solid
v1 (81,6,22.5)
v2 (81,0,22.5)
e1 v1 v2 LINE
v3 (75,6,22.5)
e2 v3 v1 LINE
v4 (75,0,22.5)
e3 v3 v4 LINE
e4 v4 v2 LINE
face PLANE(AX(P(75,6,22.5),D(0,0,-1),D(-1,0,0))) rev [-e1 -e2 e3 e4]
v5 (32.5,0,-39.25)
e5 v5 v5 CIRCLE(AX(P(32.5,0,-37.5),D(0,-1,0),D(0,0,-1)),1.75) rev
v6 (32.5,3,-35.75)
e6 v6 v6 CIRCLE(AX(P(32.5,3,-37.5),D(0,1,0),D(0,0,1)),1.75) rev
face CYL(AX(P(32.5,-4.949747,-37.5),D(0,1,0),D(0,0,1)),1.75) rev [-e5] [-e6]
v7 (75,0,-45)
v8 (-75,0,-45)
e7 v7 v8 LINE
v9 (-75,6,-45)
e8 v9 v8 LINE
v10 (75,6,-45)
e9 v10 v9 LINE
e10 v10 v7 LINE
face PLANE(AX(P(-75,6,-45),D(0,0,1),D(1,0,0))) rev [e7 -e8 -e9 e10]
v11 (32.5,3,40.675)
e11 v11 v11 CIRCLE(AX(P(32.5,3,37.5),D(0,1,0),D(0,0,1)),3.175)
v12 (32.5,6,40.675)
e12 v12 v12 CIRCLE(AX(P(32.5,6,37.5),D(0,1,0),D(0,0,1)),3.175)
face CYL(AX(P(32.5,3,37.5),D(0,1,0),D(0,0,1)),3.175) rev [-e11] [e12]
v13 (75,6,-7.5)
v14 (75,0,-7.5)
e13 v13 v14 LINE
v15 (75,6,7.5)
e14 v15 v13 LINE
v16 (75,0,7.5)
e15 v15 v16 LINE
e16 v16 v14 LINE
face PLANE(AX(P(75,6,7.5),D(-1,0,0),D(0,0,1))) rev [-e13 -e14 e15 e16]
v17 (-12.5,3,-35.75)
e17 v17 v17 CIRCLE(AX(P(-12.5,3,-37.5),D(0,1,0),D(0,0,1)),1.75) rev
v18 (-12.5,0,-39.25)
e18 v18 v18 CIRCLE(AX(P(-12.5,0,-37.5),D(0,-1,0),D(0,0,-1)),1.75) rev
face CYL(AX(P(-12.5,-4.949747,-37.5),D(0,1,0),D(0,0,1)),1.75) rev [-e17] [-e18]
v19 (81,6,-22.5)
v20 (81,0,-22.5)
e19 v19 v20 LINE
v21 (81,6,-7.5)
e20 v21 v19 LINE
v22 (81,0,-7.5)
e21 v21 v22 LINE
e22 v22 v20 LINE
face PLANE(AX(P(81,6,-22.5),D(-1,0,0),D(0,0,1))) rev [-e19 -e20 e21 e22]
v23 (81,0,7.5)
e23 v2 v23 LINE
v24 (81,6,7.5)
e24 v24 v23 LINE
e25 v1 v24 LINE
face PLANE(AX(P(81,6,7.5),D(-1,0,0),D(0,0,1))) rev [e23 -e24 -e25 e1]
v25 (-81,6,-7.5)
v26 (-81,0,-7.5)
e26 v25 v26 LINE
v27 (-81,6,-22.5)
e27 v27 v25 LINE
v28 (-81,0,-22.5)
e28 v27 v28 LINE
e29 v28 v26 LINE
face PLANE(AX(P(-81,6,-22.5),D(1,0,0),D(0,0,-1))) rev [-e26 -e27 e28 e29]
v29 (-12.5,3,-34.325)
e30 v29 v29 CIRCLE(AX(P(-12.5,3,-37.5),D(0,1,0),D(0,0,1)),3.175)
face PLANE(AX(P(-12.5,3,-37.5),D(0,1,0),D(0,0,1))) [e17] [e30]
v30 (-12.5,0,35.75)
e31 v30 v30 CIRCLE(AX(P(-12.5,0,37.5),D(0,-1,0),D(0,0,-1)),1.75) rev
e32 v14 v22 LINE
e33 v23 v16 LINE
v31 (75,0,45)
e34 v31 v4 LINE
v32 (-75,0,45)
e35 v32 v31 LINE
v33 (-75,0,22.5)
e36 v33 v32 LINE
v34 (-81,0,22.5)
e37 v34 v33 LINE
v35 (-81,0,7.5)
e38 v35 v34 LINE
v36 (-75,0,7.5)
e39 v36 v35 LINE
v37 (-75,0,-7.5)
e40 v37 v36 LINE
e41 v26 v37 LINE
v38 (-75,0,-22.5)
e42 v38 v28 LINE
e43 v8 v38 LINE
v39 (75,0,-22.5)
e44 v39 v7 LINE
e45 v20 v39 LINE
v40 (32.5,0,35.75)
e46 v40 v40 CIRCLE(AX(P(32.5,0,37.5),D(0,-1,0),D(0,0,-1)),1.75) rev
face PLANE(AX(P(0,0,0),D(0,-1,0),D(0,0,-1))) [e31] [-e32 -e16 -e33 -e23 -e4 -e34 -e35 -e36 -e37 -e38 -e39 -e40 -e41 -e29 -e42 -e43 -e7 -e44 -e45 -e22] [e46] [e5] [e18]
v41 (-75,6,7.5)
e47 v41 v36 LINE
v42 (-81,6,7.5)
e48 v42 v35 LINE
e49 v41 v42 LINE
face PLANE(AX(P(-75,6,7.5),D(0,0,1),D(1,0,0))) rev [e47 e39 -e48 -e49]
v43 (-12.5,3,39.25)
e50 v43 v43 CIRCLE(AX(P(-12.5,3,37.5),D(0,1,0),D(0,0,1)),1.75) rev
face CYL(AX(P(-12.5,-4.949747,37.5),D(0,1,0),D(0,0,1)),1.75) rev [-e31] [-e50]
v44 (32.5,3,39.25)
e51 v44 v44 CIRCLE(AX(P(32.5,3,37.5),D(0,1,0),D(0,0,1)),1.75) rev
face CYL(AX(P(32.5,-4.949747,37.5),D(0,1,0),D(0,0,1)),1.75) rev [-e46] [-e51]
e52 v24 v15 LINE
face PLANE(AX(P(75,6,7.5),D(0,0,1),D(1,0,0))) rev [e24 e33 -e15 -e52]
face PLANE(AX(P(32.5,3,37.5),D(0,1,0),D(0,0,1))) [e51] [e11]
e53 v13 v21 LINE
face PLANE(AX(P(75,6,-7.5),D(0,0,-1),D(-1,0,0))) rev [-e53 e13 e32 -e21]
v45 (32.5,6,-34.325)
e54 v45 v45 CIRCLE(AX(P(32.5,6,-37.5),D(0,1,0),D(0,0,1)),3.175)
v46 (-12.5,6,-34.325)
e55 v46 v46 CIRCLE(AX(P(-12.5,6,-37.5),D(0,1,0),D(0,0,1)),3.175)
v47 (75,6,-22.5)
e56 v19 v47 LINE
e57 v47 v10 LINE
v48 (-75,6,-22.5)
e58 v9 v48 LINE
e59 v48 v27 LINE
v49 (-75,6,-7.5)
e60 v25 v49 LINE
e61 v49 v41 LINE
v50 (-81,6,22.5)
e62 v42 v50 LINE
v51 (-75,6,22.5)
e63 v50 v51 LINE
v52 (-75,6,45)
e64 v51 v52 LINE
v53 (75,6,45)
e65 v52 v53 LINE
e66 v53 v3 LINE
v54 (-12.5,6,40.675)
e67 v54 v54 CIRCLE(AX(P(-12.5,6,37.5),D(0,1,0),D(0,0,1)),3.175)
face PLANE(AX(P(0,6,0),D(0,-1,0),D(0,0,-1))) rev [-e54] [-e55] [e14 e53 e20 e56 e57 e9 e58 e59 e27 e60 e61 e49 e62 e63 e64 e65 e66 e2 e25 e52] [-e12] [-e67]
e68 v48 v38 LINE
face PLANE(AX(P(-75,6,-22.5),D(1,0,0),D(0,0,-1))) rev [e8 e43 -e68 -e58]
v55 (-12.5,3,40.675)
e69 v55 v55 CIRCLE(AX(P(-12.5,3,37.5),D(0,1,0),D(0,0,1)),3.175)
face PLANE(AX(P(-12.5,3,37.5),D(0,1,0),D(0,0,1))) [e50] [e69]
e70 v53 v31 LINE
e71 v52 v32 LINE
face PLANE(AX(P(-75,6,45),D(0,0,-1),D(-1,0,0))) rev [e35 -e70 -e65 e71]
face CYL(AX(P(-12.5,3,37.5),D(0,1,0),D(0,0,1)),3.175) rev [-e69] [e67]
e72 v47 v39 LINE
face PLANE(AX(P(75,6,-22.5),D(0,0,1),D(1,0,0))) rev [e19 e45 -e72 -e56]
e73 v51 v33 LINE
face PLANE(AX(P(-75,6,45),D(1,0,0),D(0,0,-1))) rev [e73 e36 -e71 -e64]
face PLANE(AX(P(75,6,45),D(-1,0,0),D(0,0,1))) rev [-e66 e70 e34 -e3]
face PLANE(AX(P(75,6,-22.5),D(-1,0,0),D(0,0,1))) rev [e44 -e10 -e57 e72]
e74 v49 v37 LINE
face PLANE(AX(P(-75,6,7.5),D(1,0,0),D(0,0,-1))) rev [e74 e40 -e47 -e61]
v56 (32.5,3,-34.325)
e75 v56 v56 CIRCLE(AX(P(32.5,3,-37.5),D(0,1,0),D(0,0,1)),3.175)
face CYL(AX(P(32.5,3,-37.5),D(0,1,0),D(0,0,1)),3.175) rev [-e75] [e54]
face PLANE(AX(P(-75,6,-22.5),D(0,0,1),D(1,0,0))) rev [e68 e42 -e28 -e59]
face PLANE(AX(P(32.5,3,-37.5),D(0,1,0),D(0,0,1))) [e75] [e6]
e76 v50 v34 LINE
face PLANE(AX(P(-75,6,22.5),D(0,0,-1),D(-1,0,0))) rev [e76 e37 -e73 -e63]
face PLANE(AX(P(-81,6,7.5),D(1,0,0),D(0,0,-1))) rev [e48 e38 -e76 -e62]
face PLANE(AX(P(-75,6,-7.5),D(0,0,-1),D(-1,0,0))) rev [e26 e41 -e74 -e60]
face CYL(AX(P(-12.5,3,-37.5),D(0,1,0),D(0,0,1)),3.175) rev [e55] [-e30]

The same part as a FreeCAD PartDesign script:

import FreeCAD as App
import Part
import Sketcher

V = App.Vector
Q = App.Units.Quantity

doc = App.newDocument("Part")
params = doc.addObject("Spreadsheet::Sheet", "Params")
for row, (alias, value) in enumerate([
    ("sketch1_width", "150 mm"),
    ("sketch1_width2", "6 mm"),
    ("sketch1_height", "15 mm"),
    ("sketch1_height2", "22.5 mm"),
    ("pad1_length", "6 mm"),
    ("sketch2_diameter", "3.5 mm"),
    ("pocket1_length", "6 mm"),
    ("sketch3_diameter", "6.35 mm"),
    ("pocket2_length", "3 mm"),
], start=1):
    params.set(f"A{row}", alias)
    params.set(f"B{row}", "=" + value)
    params.setAlias(f"B{row}", alias)

body = doc.addObject("PartDesign::Body", "Body")

sketch1 = body.newObject("Sketcher::SketchObject", "Sketch")
sketch1.AttachmentSupport = (doc.getObject("XZ_Plane"), [""])
sketch1.MapMode = "FlatFace"
sketch1.addGeometry(Part.LineSegment(V(-75, 45, 0), V(75, 45, 0)), False)
sketch1.addGeometry(Part.LineSegment(V(75, 45, 0), V(75, 22, 0)), False)
sketch1.addGeometry(Part.LineSegment(V(75, 22, 0), V(81, 22, 0)), False)
sketch1.addGeometry(Part.LineSegment(V(81, 22, 0), V(81, 8, 0)), False)
sketch1.addGeometry(Part.LineSegment(V(81, 8, 0), V(75, 8, 0)), False)
sketch1.addGeometry(Part.LineSegment(V(75, 8, 0), V(75, -8, 0)), False)
sketch1.addGeometry(Part.LineSegment(V(75, -8, 0), V(81, -8, 0)), False)
sketch1.addGeometry(Part.LineSegment(V(81, -8, 0), V(81, -22, 0)), False)
sketch1.addGeometry(Part.LineSegment(V(81, -22, 0), V(75, -22, 0)), False)
sketch1.addGeometry(Part.LineSegment(V(75, -22, 0), V(75, -45, 0)), False)
sketch1.addGeometry(Part.LineSegment(V(75, -45, 0), V(-75, -45, 0)), False)
sketch1.addGeometry(Part.LineSegment(V(-75, -45, 0), V(-75, -22, 0)), False)
sketch1.addGeometry(Part.LineSegment(V(-75, -22, 0), V(-81, -22, 0)), False)
sketch1.addGeometry(Part.LineSegment(V(-81, -22, 0), V(-81, -8, 0)), False)
sketch1.addGeometry(Part.LineSegment(V(-81, -8, 0), V(-75, -8, 0)), False)
sketch1.addGeometry(Part.LineSegment(V(-75, -8, 0), V(-75, 8, 0)), False)
sketch1.addGeometry(Part.LineSegment(V(-75, 8, 0), V(-81, 8, 0)), False)
sketch1.addGeometry(Part.LineSegment(V(-81, 8, 0), V(-81, 22, 0)), False)
sketch1.addGeometry(Part.LineSegment(V(-81, 22, 0), V(-75, 22, 0)), False)
sketch1.addGeometry(Part.LineSegment(V(-75, 22, 0), V(-75, 45, 0)), False)
sketch1.addConstraint(Sketcher.Constraint("Coincident", 0, 2, 1, 1))
sketch1.addConstraint(Sketcher.Constraint("Coincident", 1, 2, 2, 1))
sketch1.addConstraint(Sketcher.Constraint("Coincident", 2, 2, 3, 1))
sketch1.addConstraint(Sketcher.Constraint("Coincident", 3, 2, 4, 1))
sketch1.addConstraint(Sketcher.Constraint("Coincident", 4, 2, 5, 1))
sketch1.addConstraint(Sketcher.Constraint("Coincident", 5, 2, 6, 1))
sketch1.addConstraint(Sketcher.Constraint("Coincident", 6, 2, 7, 1))
sketch1.addConstraint(Sketcher.Constraint("Coincident", 7, 2, 8, 1))
sketch1.addConstraint(Sketcher.Constraint("Coincident", 8, 2, 9, 1))
sketch1.addConstraint(Sketcher.Constraint("Coincident", 9, 2, 10, 1))
sketch1.addConstraint(Sketcher.Constraint("Coincident", 10, 2, 11, 1))
sketch1.addConstraint(Sketcher.Constraint("Coincident", 11, 2, 12, 1))
sketch1.addConstraint(Sketcher.Constraint("Coincident", 12, 2, 13, 1))
sketch1.addConstraint(Sketcher.Constraint("Coincident", 13, 2, 14, 1))
sketch1.addConstraint(Sketcher.Constraint("Coincident", 14, 2, 15, 1))
sketch1.addConstraint(Sketcher.Constraint("Coincident", 15, 2, 16, 1))
sketch1.addConstraint(Sketcher.Constraint("Coincident", 16, 2, 17, 1))
sketch1.addConstraint(Sketcher.Constraint("Coincident", 17, 2, 18, 1))
sketch1.addConstraint(Sketcher.Constraint("Coincident", 18, 2, 19, 1))
sketch1.addConstraint(Sketcher.Constraint("Coincident", 19, 2, 0, 1))
sketch1.addConstraint(Sketcher.Constraint("Horizontal", 0))
sketch1.addConstraint(Sketcher.Constraint("Vertical", 1))
sketch1.addConstraint(Sketcher.Constraint("Horizontal", 2))
sketch1.addConstraint(Sketcher.Constraint("Vertical", 3))
sketch1.addConstraint(Sketcher.Constraint("Horizontal", 4))
sketch1.addConstraint(Sketcher.Constraint("Vertical", 5))
sketch1.addConstraint(Sketcher.Constraint("Horizontal", 6))
sketch1.addConstraint(Sketcher.Constraint("Vertical", 7))
sketch1.addConstraint(Sketcher.Constraint("Horizontal", 8))
sketch1.addConstraint(Sketcher.Constraint("Vertical", 9))
sketch1.addConstraint(Sketcher.Constraint("Horizontal", 10))
sketch1.addConstraint(Sketcher.Constraint("Vertical", 11))
sketch1.addConstraint(Sketcher.Constraint("Horizontal", 12))
sketch1.addConstraint(Sketcher.Constraint("Vertical", 13))
sketch1.addConstraint(Sketcher.Constraint("Horizontal", 14))
sketch1.addConstraint(Sketcher.Constraint("Vertical", 15))
sketch1.addConstraint(Sketcher.Constraint("Horizontal", 16))
sketch1.addConstraint(Sketcher.Constraint("Vertical", 17))
sketch1.addConstraint(Sketcher.Constraint("Horizontal", 18))
sketch1.addConstraint(Sketcher.Constraint("Vertical", 19))
sketch1.addConstraint(Sketcher.Constraint("Symmetric", 0, 2, 10, 2, -1, 1))
sketch1.addConstraint(Sketcher.Constraint("Symmetric", 2, 2, 12, 2, -1, 1))
sketch1.addConstraint(Sketcher.Constraint("Symmetric", 4, 2, 14, 2, -1, 1))
sketch1.addConstraint(Sketcher.Constraint("Symmetric", 6, 2, 16, 2, -1, 1))
sketch1.addConstraint(Sketcher.Constraint("Symmetric", 8, 2, 18, 2, -1, 1))
sketch1.addConstraint(Sketcher.Constraint("Symmetric", 8, 2, 11, 2, -2))
sketch1.addConstraint(Sketcher.Constraint("Symmetric", 6, 2, 13, 2, -2))
sketch1.addConstraint(Sketcher.Constraint("Vertical", 1, 2, 4, 2))
sketch1.addConstraint(Sketcher.Constraint("Equal", 3, 5))
sketch1.addConstraint(Sketcher.Constraint("DistanceX", 0, 1, 0, 2, Q("150 mm")))
sketch1.addConstraint(Sketcher.Constraint("DistanceX", 2, 1, 2, 2, Q("6 mm")))
sketch1.addConstraint(Sketcher.Constraint("DistanceY", 3, 2, 3, 1, Q("15 mm")))
sketch1.addConstraint(Sketcher.Constraint("DistanceY", 1, 2, 1, 1, Q("22.5 mm")))
sketch1.setExpression("Constraints[49]", "Params.sketch1_width")
sketch1.setExpression("Constraints[50]", "Params.sketch1_width2")
sketch1.setExpression("Constraints[51]", "Params.sketch1_height")
sketch1.setExpression("Constraints[52]", "Params.sketch1_height2")
pad1 = body.newObject("PartDesign::Pad", "Pad")
pad1.Profile = sketch1
pad1.setExpression("Length", "Params.pad1_length")
pad1.Reversed = True

sketch2 = body.newObject("Sketcher::SketchObject", "Sketch001")
sketch2.AttachmentSupport = (doc.getObject("XZ_Plane"), [""])
sketch2.MapMode = "FlatFace"
sketch2.AttachmentOffset = App.Placement(V(0, 0, -6), App.Rotation())
sketch2.addGeometry(Part.Circle(V(32.5, -37.5, 0), V(0, 0, 1), 1.8), False)
sketch2.addGeometry(Part.Circle(V(32.5, 37.5, 0), V(0, 0, 1), 1.8), False)
sketch2.addGeometry(Part.Circle(V(-12.5, -37.5, 0), V(0, 0, 1), 1.8), False)
sketch2.addGeometry(Part.Circle(V(-12.5, 37.5, 0), V(0, 0, 1), 1.8), False)
sketch2.addConstraint(Sketcher.Constraint("Equal", 0, 1))
sketch2.addConstraint(Sketcher.Constraint("Equal", 1, 2))
sketch2.addConstraint(Sketcher.Constraint("Equal", 2, 3))
sketch2.addConstraint(Sketcher.Constraint("Symmetric", 0, 3, 1, 3, -1))
sketch2.addConstraint(Sketcher.Constraint("Symmetric", 2, 3, 3, 3, -1))
sketch2.addConstraint(Sketcher.Constraint("Horizontal", 0, 3, 2, 3))
sketch2.addConstraint(Sketcher.Constraint("Diameter", 0, Q("3.5 mm")))
sketch2.addConstraint(Sketcher.Constraint("DistanceY", 0, 3, 1, 3, Q("75 mm")))
sketch2.addConstraint(Sketcher.Constraint("DistanceX", 2, 3, 0, 3, Q("45 mm")))
sketch2.addConstraint(Sketcher.Constraint("DistanceX", -1, 1, 0, 3, Q("32.5 mm")))
sketch2.setExpression("Constraints[6]", "Params.sketch2_diameter")
pocket1 = body.newObject("PartDesign::Pocket", "Pocket")
pocket1.Profile = sketch2
pocket1.setExpression("Length", "Params.pocket1_length")
pocket1.Reversed = True

sketch3 = body.newObject("Sketcher::SketchObject", "Sketch002")
sketch3.AttachmentSupport = (doc.getObject("XZ_Plane"), [""])
sketch3.MapMode = "FlatFace"
sketch3.AttachmentOffset = App.Placement(V(0, 0, -6), App.Rotation())
sketch3.addGeometry(Part.Circle(V(-12.5, -37.5, 0), V(0, 0, 1), 3.2), False)
sketch3.addGeometry(Part.Circle(V(32.5, -37.5, 0), V(0, 0, 1), 3.2), False)
sketch3.addGeometry(Part.Circle(V(32.5, 37.5, 0), V(0, 0, 1), 3.2), False)
sketch3.addGeometry(Part.Circle(V(-12.5, 37.5, 0), V(0, 0, 1), 3.2), False)
sketch3.addConstraint(Sketcher.Constraint("Equal", 0, 1))
sketch3.addConstraint(Sketcher.Constraint("Equal", 1, 2))
sketch3.addConstraint(Sketcher.Constraint("Equal", 2, 3))
sketch3.addConstraint(Sketcher.Constraint("Symmetric", 1, 3, 2, 3, -1))
sketch3.addConstraint(Sketcher.Constraint("Symmetric", 0, 3, 3, 3, -1))
sketch3.addConstraint(Sketcher.Constraint("Horizontal", 0, 3, 1, 3))
sketch3.addConstraint(Sketcher.Constraint("Diameter", 0, Q("6.35 mm")))
sketch3.addConstraint(Sketcher.Constraint("DistanceX", 0, 3, 1, 3, Q("45 mm")))
sketch3.addConstraint(Sketcher.Constraint("DistanceY", 1, 3, 2, 3, Q("75 mm")))
sketch3.addConstraint(Sketcher.Constraint("DistanceX", 0, 3, -1, 1, Q("12.5 mm")))
sketch3.setExpression("Constraints[6]", "Params.sketch3_diameter")
pocket2 = body.newObject("PartDesign::Pocket", "Pocket001")
pocket2.Profile = sketch3
pocket2.setExpression("Length", "Params.pocket2_length")
pocket2.Reversed = True

doc.recompute()
